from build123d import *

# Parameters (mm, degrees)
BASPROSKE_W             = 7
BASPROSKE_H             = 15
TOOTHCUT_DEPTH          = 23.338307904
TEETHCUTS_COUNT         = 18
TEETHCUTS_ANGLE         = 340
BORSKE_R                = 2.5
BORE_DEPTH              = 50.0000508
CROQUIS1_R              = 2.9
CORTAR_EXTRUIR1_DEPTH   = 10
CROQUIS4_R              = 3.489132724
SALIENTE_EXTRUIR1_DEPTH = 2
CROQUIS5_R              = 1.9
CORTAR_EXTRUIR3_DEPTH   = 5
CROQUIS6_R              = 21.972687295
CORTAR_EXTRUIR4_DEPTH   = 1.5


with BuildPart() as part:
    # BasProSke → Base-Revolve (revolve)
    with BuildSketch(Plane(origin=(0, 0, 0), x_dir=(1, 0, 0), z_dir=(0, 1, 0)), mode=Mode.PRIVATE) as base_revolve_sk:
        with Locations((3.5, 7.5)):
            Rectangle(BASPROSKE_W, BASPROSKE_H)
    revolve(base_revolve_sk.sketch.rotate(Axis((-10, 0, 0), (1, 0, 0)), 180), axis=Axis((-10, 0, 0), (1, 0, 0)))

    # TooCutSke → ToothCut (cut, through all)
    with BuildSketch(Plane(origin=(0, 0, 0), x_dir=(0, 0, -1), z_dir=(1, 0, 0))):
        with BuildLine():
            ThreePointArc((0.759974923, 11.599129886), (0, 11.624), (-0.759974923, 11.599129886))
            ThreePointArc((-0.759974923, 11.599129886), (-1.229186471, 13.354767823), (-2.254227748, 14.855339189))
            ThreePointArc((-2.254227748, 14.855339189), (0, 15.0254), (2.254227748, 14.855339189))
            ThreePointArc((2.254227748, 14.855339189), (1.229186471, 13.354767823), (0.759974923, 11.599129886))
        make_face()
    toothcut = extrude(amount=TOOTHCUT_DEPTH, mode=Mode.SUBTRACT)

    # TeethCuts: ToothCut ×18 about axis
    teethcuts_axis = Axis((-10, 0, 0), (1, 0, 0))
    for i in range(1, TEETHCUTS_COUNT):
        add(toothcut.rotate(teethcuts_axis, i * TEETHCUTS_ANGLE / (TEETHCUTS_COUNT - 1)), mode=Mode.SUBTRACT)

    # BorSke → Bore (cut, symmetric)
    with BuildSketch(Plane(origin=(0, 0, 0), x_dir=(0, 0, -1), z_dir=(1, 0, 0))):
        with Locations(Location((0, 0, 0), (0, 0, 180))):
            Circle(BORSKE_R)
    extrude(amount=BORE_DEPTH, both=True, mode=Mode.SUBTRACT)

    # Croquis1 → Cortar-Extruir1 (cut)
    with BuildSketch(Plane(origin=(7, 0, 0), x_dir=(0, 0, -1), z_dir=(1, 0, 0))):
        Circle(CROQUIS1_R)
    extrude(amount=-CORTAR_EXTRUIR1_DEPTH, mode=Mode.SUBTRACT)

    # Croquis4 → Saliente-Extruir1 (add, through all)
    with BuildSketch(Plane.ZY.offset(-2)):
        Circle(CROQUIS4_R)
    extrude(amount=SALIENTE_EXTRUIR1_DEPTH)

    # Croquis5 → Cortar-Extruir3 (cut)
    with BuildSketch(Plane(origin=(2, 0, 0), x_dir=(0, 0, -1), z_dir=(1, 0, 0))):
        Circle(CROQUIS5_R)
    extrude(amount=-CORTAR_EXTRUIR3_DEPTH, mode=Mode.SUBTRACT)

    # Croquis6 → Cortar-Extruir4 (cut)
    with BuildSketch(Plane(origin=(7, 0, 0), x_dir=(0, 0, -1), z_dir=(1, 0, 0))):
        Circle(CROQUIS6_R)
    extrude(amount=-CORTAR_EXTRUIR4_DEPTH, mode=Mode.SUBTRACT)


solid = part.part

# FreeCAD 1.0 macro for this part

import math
import FreeCAD as App
import Part
import Sketcher
from FreeCAD import Vector
Q = App.Units.Quantity


def add_polygon(sketch, points):
    """Adds a closed chain of lines whose ends are joined by coincident constraints."""
    first, n = sketch.GeometryCount, len(points)
    for a, b in zip(points, points[1:] + points[:1]):
        sketch.addGeometry(Part.LineSegment(App.Vector(*a, 0), App.Vector(*b, 0)), False)
    for i in range(n):
        sketch.addConstraint(Sketcher.Constraint("Coincident", first + i, 2, first + (i + 1) % n, 1))

doc = App.newDocument("Part")
body = doc.addObject("PartDesign::Body", "Body")

# Sketch on XZ plane
sketch1 = body.newObject("Sketcher::SketchObject", "Sketch")
sketch1.AttachmentSupport = (doc.getObject("XZ_Plane"), [""])
sketch1.MapMode = "FlatFace"
add_polygon(sketch1, [(0, -15), (0, 0), (7, 0), (7, -15)])  # lines 0-3
sketch1.addConstraint([
    Sketcher.Constraint("Vertical", 0),
    Sketcher.Constraint("Horizontal", 1),
    Sketcher.Constraint("Vertical", 2),
    Sketcher.Constraint("Horizontal", 3),
    Sketcher.Constraint("Coincident", 0, 2, -1, 1),
    Sketcher.Constraint("DistanceX", 1, 1, 1, 2, Q("7 mm")),
    Sketcher.Constraint("DistanceY", 0, 1, 0, 2, Q("15 mm")),
])
revolution = body.newObject("PartDesign::Revolution", "Revolution")
revolution.Profile = sketch1
revolution.ReferenceAxis = (sketch1, ["H_Axis"])
revolution.Angle = 360

# Sketch on YZ plane
sketch2 = body.newObject("Sketcher::SketchObject", "Sketch001")
sketch2.AttachmentSupport = (doc.getObject("YZ_Plane"), [""])
sketch2.MapMode = "FlatFace"
sketch2.addGeometry([
    Part.ArcOfCircle(Part.Circle(Vector(0, 0, 0), Vector(0, 0, 1), 11.624), math.radians(-3.748661), math.radians(3.748661)),
    Part.ArcOfCircle(Part.Circle(Vector(11.102561, -6.137095, 0), Vector(0, 0, 1), 5.4), math.radians(45.976059), math.radians(84.723789)),
    Part.ArcOfCircle(Part.Circle(Vector(0, 0, 0), Vector(0, 0, 1), 15.0254), math.radians(-8.628538), math.radians(8.628538)),
    Part.ArcOfCircle(Part.Circle(Vector(11.102561, 6.137095, 0), Vector(0, 0, 1), 5.4), math.radians(-84.723789), math.radians(-45.976059)),
], False)
sketch2.addConstraint([
    Sketcher.Constraint("Coincident", 0, 1, 1, 2),
    Sketcher.Constraint("Coincident", 1, 1, 2, 1),
    Sketcher.Constraint("Coincident", 2, 2, 3, 2),
    Sketcher.Constraint("Coincident", 3, 1, 0, 2),
    Sketcher.Constraint("Coincident", 0, 3, -1, 1),
    Sketcher.Constraint("Coincident", 2, 3, -1, 1),
    Sketcher.Constraint("Equal", 1, 3),
    Sketcher.Constraint("Symmetric", 1, 3, 3, 3, -1),
    Sketcher.Constraint("Radius", 1, Q("5.4 mm")),
    Sketcher.Constraint("Radius", 0, Q("11.624 mm")),
    Sketcher.Constraint("Radius", 2, Q("15.0254 mm")),
    Sketcher.Constraint("DistanceX", -1, 1, 1, 3, Q("11.102561 mm")),
    Sketcher.Constraint("DistanceX", -1, 1, 0, 1, Q("11.59913 mm")),
])
pocket1 = body.newObject("PartDesign::Pocket", "Pocket")
pocket1.Profile = sketch2
pocket1.Type = "ThroughAll"
pocket1.Reversed = True
doc.recompute()

polarpattern = body.newObject("PartDesign::PolarPattern", "PolarPattern")
polarpattern.Originals = [pocket1]
polarpattern.Axis = (doc.getObject("X_Axis"), [""])
polarpattern.Angle = 360
polarpattern.Occurrences = 18
body.Tip = polarpattern

# Sketch on YZ plane
sketch3 = body.newObject("Sketcher::SketchObject", "Sketch002")
sketch3.AttachmentSupport = (doc.getObject("YZ_Plane"), [""])
sketch3.MapMode = "FlatFace"
sketch3.addGeometry(Part.Circle(Vector(0, 0, 0), Vector(0, 0, 1), 2.5), False)
sketch3.addConstraint([
    Sketcher.Constraint("Coincident", 0, 3, -1, 1),
    Sketcher.Constraint("Diameter", 0, Q("5 mm")),
])
pocket2 = body.newObject("PartDesign::Pocket", "Pocket001")
pocket2.Profile = sketch3
pocket2.Length = 100.000102
pocket2.Midplane = True

# Sketch on YZ plane
sketch4 = body.newObject("Sketcher::SketchObject", "Sketch003")
sketch4.AttachmentSupport = (doc.getObject("YZ_Plane"), [""])
sketch4.MapMode = "FlatFace"
sketch4.AttachmentOffset = App.Placement(Vector(0, 0, 7), App.Rotation())
sketch4.addGeometry(Part.Circle(Vector(0, 0, 0), Vector(0, 0, 1), 2.9), False)
sketch4.addConstraint([
    Sketcher.Constraint("Coincident", 0, 3, -1, 1),
    Sketcher.Constraint("Diameter", 0, Q("5.8 mm")),
])
pocket3 = body.newObject("PartDesign::Pocket", "Pocket002")
pocket3.Profile = sketch4
pocket3.Length = 10

# Sketch on YZ plane
sketch5 = body.newObject("Sketcher::SketchObject", "Sketch004")
sketch5.AttachmentSupport = (doc.getObject("YZ_Plane"), [""])
sketch5.MapMode = "FlatFace"
sketch5.AttachmentOffset = App.Placement(Vector(0, 0, 2), App.Rotation())
sketch5.addGeometry(Part.Circle(Vector(0, 0, 0), Vector(0, 0, 1), 3.489133), False)
sketch5.addConstraint([
    Sketcher.Constraint("Coincident", 0, 3, -1, 1),
    Sketcher.Constraint("Diameter", 0, Q("6.978265 mm")),
])
pad1 = body.newObject("PartDesign::Pad", "Pad")
pad1.Profile = sketch5
pad1.Length = 2
pad1.Reversed = True

# Sketch on YZ plane
sketch6 = body.newObject("Sketcher::SketchObject", "Sketch005")
sketch6.AttachmentSupport = (doc.getObject("YZ_Plane"), [""])
sketch6.MapMode = "FlatFace"
sketch6.AttachmentOffset = App.Placement(Vector(0, 0, 2), App.Rotation())
sketch6.addGeometry(Part.Circle(Vector(0, 0, 0), Vector(0, 0, 1), 1.9), False)
sketch6.addConstraint([
    Sketcher.Constraint("Coincident", 0, 3, -1, 1),
    Sketcher.Constraint("Diameter", 0, Q("3.8 mm")),
])
pocket4 = body.newObject("PartDesign::Pocket", "Pocket003")
pocket4.Profile = sketch6
pocket4.Length = 5

# Sketch on YZ plane
sketch7 = body.newObject("Sketcher::SketchObject", "Sketch006")
sketch7.AttachmentSupport = (doc.getObject("YZ_Plane"), [""])
sketch7.MapMode = "FlatFace"
sketch7.AttachmentOffset = App.Placement(Vector(0, 0, 7), App.Rotation())
sketch7.addGeometry(Part.Circle(Vector(0, 0, 0), Vector(0, 0, 1), 21.972687), False)
sketch7.addConstraint([
    Sketcher.Constraint("Coincident", 0, 3, -1, 1),
    Sketcher.Constraint("Diameter", 0, Q("43.945375 mm")),
])
pocket5 = body.newObject("PartDesign::Pocket", "Pocket004")
pocket5.Profile = sketch7
pocket5.Length = 1.5

doc.recompute()
